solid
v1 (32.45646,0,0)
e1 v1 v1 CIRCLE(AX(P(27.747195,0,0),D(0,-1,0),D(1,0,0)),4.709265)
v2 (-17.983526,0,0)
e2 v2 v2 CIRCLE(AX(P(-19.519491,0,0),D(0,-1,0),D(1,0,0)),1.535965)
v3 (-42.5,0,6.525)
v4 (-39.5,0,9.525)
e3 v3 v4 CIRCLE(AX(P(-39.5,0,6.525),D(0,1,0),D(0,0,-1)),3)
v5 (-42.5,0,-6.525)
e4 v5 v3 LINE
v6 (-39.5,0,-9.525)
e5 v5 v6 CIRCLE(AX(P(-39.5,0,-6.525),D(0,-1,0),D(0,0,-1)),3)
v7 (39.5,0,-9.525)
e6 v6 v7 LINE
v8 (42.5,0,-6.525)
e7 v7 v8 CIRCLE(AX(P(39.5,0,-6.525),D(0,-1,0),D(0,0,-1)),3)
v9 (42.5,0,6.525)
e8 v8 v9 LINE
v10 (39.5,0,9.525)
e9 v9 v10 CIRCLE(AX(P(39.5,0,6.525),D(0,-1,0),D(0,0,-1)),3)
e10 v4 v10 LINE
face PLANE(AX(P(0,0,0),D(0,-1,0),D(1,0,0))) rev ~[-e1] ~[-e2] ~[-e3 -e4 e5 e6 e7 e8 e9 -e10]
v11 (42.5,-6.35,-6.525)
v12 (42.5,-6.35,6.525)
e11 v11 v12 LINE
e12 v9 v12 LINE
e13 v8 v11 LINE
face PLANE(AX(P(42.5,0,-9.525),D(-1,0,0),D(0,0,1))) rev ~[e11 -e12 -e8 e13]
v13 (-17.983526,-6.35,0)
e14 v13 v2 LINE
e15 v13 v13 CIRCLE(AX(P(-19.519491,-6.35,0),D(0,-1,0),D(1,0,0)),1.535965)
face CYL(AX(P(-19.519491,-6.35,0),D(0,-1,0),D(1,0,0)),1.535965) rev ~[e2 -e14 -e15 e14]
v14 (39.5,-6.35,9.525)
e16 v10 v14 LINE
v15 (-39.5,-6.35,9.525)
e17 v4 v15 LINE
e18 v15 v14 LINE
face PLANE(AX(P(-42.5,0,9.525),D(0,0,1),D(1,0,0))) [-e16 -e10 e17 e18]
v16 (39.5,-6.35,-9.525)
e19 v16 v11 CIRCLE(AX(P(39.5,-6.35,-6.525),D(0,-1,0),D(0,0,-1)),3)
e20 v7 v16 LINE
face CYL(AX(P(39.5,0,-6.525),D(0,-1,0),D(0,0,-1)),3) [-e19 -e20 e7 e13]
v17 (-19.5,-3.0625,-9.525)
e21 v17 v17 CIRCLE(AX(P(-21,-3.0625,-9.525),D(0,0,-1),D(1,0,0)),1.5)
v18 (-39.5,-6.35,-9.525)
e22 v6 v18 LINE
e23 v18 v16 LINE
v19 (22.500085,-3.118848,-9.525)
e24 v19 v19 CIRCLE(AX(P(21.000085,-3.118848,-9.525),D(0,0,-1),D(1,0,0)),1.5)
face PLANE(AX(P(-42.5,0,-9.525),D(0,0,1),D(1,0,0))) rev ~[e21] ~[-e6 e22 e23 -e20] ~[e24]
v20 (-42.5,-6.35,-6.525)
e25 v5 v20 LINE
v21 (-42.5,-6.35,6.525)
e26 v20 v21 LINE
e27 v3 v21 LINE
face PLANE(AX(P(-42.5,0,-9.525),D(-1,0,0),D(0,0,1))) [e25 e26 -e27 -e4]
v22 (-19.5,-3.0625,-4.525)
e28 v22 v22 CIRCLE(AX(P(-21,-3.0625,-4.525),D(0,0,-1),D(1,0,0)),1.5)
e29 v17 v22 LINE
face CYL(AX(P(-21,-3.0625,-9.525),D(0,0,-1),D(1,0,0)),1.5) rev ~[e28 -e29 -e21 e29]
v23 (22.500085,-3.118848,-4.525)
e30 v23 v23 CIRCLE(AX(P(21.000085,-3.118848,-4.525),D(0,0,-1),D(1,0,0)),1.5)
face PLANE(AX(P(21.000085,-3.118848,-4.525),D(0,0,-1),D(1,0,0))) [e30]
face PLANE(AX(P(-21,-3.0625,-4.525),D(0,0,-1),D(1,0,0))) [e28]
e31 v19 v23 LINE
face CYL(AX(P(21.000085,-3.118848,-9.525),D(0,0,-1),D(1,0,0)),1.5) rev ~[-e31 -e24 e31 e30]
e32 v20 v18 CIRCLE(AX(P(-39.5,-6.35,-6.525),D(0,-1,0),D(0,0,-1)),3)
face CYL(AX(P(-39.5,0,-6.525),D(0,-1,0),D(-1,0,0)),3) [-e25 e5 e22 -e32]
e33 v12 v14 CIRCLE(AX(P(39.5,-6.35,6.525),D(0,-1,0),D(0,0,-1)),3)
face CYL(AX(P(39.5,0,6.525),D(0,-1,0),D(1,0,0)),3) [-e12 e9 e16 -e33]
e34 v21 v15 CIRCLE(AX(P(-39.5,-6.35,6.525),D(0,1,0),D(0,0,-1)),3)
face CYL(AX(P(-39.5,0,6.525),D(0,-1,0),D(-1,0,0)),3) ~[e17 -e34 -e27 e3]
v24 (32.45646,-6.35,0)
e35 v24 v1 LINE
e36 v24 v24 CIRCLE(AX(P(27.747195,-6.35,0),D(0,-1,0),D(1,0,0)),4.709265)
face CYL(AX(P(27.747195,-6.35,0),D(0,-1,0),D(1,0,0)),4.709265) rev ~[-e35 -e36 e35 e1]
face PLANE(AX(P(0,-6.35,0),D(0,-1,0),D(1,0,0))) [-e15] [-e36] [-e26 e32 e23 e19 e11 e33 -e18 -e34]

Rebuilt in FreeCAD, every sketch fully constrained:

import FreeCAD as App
import Part
import Sketcher


def edges_at(feature, points):
    """Names of the edges that pass closest to the given points."""
    edges = feature.Shape.Edges
    near = lambda p: min(range(len(edges)), key=lambda i: edges[i].distToShape(Part.Vertex(*p))[0])
    return sorted({f"Edge{near(p) + 1}" for p in points})

doc = App.newDocument("Part")
body = doc.addObject("PartDesign::Body", "Body")

sketch1 = body.newObject("Sketcher::SketchObject", "Sketch")
sketch1.AttachmentSupport = (doc.getObject("XZ_Plane"), [""])
sketch1.MapMode = "FlatFace"
sketch1.addGeometry(Part.LineSegment(App.Vector(-42, 10, 0), App.Vector(-42, -10, 0)), False)
sketch1.addGeometry(Part.LineSegment(App.Vector(-42, -10, 0), App.Vector(42, -10, 0)), False)
sketch1.addGeometry(Part.LineSegment(App.Vector(42, -10, 0), App.Vector(42, 10, 0)), False)
sketch1.addGeometry(Part.LineSegment(App.Vector(42, 10, 0), App.Vector(-42, 10, 0)), False)
sketch1.addConstraint(Sketcher.Constraint("Coincident", 0, 2, 1, 1))
sketch1.addConstraint(Sketcher.Constraint("Coincident", 1, 2, 2, 1))
sketch1.addConstraint(Sketcher.Constraint("Coincident", 2, 2, 3, 1))
sketch1.addConstraint(Sketcher.Constraint("Coincident", 3, 2, 0, 1))
sketch1.addConstraint(Sketcher.Constraint("Vertical", 0))
sketch1.addConstraint(Sketcher.Constraint("Horizontal", 1))
sketch1.addConstraint(Sketcher.Constraint("Vertical", 2))
sketch1.addConstraint(Sketcher.Constraint("Horizontal", 3))
sketch1.addConstraint(Sketcher.Constraint("Symmetric", 0, 2, 2, 2, -1, 1))
sketch1.addConstraint(Sketcher.Constraint("DistanceX", 1, 1, 1, 2, 85.0))
sketch1.addConstraint(Sketcher.Constraint("DistanceY", 0, 2, 0, 1, 19.05))
pad1 = body.newObject("PartDesign::Pad", "Pad")
pad1.Profile = sketch1
pad1.Length = 6.35
doc.recompute()

fillet = body.newObject("PartDesign::Fillet", "Fillet")
fillet.Base = (pad1, edges_at(pad1, [
    (-42.5, -3.175, 9.525),
    (42.5, -3.175, 9.525),
    (-42.5, -3.175, -9.525),
    (42.5, -3.175, -9.525),
]))
fillet.Radius = 3

sketch2 = body.newObject("Sketcher::SketchObject", "Sketch001")
sketch2.AttachmentSupport = (doc.getObject("XZ_Plane"), [""])
sketch2.MapMode = "FlatFace"
sketch2.AttachmentOffset = App.Placement(App.Vector(0, 0, 6.35), App.Rotation())
sketch2.addGeometry(Part.Circle(App.Vector(-19.5, 0, 0), App.Vector(0, 0, 1), 1.5), False)
sketch2.addGeometry(Part.Circle(App.Vector(27.7, 0, 0), App.Vector(0, 0, 1), 4.7), False)
sketch2.addConstraint(Sketcher.Constraint("PointOnObject", 0, 3, -1))
sketch2.addConstraint(Sketcher.Constraint("PointOnObject", 1, 3, -1))
sketch2.addConstraint(Sketcher.Constraint("Diameter", 0, 3.07193))
sketch2.addConstraint(Sketcher.Constraint("Diameter", 1, 9.41853))
sketch2.addConstraint(Sketcher.Constraint("DistanceX", 0, 3, -1, 1, 19.519491))
sketch2.addConstraint(Sketcher.Constraint("DistanceX", -1, 1, 1, 3, 27.747195))
pocket1 = body.newObject("PartDesign::Pocket", "Pocket")
pocket1.Profile = sketch2
pocket1.Length = 25

sketch3 = body.newObject("Sketcher::SketchObject", "Sketch002")
sketch3.AttachmentSupport = (doc.getObject("XY_Plane"), [""])
sketch3.MapMode = "FlatFace"
sketch3.AttachmentOffset = App.Placement(App.Vector(0, 0, -9.525), App.Rotation())
sketch3.addGeometry(Part.Circle(App.Vector(-21, -3.1, 0), App.Vector(0, 0, 1), 1.5), False)
sketch3.addGeometry(Part.Circle(App.Vector(21, -3.1, 0), App.Vector(0, 0, 1), 1.5), False)
sketch3.addConstraint(Sketcher.Constraint("Equal", 0, 1))
sketch3.addConstraint(Sketcher.Constraint("Diameter", 0, 3.0))
sketch3.addConstraint(Sketcher.Constraint("DistanceX", 0, 3, -1, 1, 21.0))
sketch3.addConstraint(Sketcher.Constraint("DistanceY", 0, 3, -1, 1, 3.0625))
sketch3.addConstraint(Sketcher.Constraint("DistanceX", -1, 1, 1, 3, 21.000085))
sketch3.addConstraint(Sketcher.Constraint("DistanceY", 1, 3, -1, 1, 3.118848))
pocket2 = body.newObject("PartDesign::Pocket", "Pocket001")
pocket2.Profile = sketch3
pocket2.Length = 5
pocket2.Reversed = True

doc.recompute()
